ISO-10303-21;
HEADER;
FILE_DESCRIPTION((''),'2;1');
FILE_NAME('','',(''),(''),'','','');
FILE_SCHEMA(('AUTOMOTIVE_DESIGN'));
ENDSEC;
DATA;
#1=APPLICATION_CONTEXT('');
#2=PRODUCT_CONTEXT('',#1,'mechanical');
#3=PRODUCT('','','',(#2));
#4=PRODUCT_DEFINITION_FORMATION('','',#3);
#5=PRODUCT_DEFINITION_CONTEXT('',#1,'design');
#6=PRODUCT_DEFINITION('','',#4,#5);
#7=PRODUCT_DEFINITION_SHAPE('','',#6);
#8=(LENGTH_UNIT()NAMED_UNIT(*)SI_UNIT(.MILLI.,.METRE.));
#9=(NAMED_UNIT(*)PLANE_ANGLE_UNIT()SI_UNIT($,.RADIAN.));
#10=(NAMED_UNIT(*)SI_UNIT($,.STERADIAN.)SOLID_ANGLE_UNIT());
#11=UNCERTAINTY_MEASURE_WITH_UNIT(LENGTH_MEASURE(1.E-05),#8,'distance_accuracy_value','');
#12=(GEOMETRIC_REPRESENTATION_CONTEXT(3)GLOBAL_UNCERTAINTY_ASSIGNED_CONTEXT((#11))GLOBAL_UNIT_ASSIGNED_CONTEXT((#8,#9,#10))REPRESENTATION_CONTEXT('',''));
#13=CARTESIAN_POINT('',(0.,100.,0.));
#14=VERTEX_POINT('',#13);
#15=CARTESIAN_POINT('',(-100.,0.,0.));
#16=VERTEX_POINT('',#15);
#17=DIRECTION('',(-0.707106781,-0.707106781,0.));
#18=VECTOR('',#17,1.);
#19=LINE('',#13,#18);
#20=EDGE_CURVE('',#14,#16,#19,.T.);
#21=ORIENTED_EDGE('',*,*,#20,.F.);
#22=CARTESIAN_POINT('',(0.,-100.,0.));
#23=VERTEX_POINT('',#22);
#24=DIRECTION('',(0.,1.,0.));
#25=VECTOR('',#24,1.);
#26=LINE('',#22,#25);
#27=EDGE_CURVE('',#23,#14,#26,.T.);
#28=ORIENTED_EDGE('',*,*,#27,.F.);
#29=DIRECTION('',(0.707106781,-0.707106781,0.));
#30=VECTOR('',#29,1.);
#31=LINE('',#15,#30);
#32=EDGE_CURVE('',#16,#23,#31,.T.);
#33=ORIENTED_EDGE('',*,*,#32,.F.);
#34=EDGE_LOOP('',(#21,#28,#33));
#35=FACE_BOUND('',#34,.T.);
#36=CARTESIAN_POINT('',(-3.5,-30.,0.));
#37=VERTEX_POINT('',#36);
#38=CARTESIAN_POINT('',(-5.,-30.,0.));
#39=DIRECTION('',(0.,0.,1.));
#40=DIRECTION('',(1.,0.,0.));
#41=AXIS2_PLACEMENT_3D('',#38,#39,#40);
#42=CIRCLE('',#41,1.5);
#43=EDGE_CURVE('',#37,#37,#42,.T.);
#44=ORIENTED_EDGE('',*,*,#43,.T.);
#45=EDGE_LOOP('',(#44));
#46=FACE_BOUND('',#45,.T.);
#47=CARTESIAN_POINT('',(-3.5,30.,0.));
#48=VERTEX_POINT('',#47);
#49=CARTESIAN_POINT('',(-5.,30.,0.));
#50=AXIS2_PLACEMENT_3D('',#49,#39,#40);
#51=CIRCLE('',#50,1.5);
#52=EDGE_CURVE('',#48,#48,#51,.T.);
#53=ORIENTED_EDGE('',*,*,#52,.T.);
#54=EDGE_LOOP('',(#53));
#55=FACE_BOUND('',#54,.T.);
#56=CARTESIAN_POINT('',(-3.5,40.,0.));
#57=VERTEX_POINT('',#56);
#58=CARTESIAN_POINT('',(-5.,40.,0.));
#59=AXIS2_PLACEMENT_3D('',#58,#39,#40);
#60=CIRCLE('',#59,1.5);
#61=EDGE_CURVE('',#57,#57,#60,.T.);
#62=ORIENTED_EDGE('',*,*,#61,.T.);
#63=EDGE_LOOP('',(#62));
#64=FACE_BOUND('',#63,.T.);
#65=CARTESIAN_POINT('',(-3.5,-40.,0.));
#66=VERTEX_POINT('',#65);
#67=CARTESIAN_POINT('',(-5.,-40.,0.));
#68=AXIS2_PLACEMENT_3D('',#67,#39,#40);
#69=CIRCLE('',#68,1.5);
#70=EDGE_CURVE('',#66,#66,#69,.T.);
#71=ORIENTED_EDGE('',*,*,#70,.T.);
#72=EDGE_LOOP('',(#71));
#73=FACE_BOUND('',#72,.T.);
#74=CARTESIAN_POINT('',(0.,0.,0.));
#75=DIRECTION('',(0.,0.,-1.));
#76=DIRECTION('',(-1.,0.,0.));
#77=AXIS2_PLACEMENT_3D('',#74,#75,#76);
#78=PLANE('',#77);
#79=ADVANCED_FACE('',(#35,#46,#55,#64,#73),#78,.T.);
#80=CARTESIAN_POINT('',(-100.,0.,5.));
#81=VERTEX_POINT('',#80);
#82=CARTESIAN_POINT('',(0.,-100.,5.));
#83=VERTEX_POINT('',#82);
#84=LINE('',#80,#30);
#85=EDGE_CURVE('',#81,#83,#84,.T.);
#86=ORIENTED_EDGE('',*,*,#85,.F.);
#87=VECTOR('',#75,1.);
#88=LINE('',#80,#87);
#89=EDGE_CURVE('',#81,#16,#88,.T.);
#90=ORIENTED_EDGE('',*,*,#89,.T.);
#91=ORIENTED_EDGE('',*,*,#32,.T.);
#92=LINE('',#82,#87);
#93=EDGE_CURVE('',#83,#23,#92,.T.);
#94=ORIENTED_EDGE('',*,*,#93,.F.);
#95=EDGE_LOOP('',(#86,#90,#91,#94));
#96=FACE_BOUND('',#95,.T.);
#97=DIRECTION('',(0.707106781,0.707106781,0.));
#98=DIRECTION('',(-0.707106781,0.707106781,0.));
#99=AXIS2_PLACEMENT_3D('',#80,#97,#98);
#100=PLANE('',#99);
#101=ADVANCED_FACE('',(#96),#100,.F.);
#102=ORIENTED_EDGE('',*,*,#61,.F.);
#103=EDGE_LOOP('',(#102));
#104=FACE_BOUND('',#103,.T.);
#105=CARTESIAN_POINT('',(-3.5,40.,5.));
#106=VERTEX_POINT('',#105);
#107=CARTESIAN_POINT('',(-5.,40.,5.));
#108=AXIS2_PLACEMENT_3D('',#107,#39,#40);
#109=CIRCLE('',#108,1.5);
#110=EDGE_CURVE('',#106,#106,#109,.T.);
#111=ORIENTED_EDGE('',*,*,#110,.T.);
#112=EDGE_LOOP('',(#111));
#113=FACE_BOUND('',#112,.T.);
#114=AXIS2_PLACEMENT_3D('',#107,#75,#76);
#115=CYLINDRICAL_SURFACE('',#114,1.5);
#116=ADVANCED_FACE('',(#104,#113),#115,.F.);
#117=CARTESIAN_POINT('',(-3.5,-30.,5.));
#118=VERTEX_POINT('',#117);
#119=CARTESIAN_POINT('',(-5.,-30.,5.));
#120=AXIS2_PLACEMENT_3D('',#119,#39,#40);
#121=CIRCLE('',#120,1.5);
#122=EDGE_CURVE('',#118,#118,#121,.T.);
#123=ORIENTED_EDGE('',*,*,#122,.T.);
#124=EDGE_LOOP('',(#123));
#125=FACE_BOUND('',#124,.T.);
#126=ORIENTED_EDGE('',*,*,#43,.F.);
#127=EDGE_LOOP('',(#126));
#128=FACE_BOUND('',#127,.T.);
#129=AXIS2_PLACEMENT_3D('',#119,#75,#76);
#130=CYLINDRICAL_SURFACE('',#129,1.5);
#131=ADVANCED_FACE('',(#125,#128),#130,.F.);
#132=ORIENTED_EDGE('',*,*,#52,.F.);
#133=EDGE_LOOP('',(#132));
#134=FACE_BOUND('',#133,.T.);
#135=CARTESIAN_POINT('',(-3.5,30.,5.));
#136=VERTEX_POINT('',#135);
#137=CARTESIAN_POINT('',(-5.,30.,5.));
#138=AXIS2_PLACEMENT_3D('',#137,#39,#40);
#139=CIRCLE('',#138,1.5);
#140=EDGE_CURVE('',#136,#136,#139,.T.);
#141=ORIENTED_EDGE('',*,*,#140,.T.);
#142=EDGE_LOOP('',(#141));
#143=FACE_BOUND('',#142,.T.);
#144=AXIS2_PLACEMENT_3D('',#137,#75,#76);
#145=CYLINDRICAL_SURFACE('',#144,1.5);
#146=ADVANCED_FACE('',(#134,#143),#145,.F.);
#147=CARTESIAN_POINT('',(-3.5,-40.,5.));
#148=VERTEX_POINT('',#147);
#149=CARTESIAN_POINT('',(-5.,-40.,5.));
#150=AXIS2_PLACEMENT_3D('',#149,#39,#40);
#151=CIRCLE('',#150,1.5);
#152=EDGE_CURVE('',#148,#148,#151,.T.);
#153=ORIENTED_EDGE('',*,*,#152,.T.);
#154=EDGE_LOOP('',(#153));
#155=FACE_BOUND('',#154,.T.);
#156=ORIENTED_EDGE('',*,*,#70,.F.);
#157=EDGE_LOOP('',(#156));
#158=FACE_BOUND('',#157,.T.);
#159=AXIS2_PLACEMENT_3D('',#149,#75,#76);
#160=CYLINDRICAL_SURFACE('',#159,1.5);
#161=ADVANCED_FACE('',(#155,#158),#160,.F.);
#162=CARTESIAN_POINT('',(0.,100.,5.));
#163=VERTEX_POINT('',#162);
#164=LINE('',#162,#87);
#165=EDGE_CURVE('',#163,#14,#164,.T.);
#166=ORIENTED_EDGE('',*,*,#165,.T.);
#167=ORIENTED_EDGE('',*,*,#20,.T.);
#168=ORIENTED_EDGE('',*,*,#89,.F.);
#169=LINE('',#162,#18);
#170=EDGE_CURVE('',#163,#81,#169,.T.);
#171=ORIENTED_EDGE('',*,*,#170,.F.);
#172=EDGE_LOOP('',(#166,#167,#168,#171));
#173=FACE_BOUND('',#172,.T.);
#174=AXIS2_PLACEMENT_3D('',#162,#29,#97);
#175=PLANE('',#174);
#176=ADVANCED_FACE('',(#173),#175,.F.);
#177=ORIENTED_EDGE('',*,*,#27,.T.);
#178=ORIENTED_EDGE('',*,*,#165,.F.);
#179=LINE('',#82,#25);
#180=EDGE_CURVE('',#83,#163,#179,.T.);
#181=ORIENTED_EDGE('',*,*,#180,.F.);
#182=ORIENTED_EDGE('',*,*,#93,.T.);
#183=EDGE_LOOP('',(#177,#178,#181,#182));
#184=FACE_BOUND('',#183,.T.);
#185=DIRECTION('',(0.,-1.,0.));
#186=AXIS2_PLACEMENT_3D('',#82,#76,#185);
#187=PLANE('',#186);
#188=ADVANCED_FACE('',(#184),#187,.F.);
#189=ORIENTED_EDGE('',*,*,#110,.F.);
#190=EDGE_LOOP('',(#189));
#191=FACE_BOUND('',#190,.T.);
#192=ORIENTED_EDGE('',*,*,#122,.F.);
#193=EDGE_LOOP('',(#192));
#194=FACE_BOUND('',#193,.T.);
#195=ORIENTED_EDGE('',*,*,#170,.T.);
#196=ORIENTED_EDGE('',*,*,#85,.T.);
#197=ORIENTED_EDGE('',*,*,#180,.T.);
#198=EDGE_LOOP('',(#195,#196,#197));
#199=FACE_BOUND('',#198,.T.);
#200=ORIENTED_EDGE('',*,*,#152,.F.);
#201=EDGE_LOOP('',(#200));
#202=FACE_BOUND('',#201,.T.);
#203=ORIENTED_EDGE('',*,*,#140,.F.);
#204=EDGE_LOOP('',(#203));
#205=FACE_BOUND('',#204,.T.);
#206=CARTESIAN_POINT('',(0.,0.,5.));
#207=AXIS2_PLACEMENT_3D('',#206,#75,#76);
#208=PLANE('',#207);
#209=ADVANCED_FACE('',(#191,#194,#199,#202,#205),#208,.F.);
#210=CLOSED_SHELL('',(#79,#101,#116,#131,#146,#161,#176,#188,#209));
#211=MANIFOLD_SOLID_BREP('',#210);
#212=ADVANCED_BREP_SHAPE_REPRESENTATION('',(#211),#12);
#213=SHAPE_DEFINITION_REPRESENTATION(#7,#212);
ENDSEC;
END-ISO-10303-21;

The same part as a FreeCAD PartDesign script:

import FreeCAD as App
import Part
import Sketcher

V = App.Vector
Q = App.Units.Quantity


def add_polygon(sketch, points):
    """Adds a closed chain of lines whose ends are joined by coincident constraints."""
    first, n = sketch.GeometryCount, len(points)
    for a, b in zip(points, points[1:] + points[:1]):
        sketch.addGeometry(Part.LineSegment(App.Vector(*a, 0), App.Vector(*b, 0)), False)
    for i in range(n):
        sketch.addConstraint(Sketcher.Constraint("Coincident", first + i, 2, first + (i + 1) % n, 1))

doc = App.newDocument("Part")
body = doc.addObject("PartDesign::Body", "Body")

sketch1 = doc.addObject("Sketcher::SketchObject", "Sketch")
body.addObject(sketch1)
sketch1.AttachmentSupport = (doc.XY_Plane, [""])
sketch1.MapMode = "FlatFace"
add_polygon(sketch1, [(0, -100), (0, 100), (-100, 0)])
sketch1.addGeometry(Part.Circle(V(-5, -40, 0), V(0, 0, 1), 1.5), False)
sketch1.addGeometry(Part.Circle(V(-5, -30, 0), V(0, 0, 1), 1.5), False)
sketch1.addGeometry(Part.Circle(V(-5, 30, 0), V(0, 0, 1), 1.5), False)
sketch1.addGeometry(Part.Circle(V(-5, 40, 0), V(0, 0, 1), 1.5), False)
sketch1.addConstraint(Sketcher.Constraint("Vertical", 0))
sketch1.addConstraint(Sketcher.Constraint("Equal", 3, 4))
sketch1.addConstraint(Sketcher.Constraint("Equal", 4, 5))
sketch1.addConstraint(Sketcher.Constraint("Equal", 5, 6))
sketch1.addConstraint(Sketcher.Constraint("Symmetric", 0, 2, 2, 2, -1, 1))
sketch1.addConstraint(Sketcher.Constraint("Symmetric", 4, 3, 5, 3, -1))
sketch1.addConstraint(Sketcher.Constraint("Symmetric", 3, 3, 6, 3, -1))
sketch1.addConstraint(Sketcher.Constraint("PointOnObject", 1, 2, -1))
sketch1.addConstraint(Sketcher.Constraint("Perpendicular", 1, 2))
sketch1.addConstraint(Sketcher.Constraint("Vertical", 3, 3, 4, 3))
sketch1.addConstraint(Sketcher.Constraint("Diameter", 3, Q("3 mm")))
sketch1.addConstraint(Sketcher.Constraint("DistanceY", 0, 1, 0, 2, Q("200 mm")))
sketch1.addConstraint(Sketcher.Constraint("DistanceX", 3, 3, -1, 1, Q("5 mm")))
sketch1.addConstraint(Sketcher.Constraint("DistanceY", 3, 3, -1, 1, Q("40 mm")))
sketch1.addConstraint(Sketcher.Constraint("DistanceY", 4, 3, -1, 1, Q("30 mm")))
pad1 = doc.addObject("PartDesign::Pad", "Pad")
body.addObject(pad1)
pad1.Profile = sketch1
pad1.Length = 5

doc.recompute()
